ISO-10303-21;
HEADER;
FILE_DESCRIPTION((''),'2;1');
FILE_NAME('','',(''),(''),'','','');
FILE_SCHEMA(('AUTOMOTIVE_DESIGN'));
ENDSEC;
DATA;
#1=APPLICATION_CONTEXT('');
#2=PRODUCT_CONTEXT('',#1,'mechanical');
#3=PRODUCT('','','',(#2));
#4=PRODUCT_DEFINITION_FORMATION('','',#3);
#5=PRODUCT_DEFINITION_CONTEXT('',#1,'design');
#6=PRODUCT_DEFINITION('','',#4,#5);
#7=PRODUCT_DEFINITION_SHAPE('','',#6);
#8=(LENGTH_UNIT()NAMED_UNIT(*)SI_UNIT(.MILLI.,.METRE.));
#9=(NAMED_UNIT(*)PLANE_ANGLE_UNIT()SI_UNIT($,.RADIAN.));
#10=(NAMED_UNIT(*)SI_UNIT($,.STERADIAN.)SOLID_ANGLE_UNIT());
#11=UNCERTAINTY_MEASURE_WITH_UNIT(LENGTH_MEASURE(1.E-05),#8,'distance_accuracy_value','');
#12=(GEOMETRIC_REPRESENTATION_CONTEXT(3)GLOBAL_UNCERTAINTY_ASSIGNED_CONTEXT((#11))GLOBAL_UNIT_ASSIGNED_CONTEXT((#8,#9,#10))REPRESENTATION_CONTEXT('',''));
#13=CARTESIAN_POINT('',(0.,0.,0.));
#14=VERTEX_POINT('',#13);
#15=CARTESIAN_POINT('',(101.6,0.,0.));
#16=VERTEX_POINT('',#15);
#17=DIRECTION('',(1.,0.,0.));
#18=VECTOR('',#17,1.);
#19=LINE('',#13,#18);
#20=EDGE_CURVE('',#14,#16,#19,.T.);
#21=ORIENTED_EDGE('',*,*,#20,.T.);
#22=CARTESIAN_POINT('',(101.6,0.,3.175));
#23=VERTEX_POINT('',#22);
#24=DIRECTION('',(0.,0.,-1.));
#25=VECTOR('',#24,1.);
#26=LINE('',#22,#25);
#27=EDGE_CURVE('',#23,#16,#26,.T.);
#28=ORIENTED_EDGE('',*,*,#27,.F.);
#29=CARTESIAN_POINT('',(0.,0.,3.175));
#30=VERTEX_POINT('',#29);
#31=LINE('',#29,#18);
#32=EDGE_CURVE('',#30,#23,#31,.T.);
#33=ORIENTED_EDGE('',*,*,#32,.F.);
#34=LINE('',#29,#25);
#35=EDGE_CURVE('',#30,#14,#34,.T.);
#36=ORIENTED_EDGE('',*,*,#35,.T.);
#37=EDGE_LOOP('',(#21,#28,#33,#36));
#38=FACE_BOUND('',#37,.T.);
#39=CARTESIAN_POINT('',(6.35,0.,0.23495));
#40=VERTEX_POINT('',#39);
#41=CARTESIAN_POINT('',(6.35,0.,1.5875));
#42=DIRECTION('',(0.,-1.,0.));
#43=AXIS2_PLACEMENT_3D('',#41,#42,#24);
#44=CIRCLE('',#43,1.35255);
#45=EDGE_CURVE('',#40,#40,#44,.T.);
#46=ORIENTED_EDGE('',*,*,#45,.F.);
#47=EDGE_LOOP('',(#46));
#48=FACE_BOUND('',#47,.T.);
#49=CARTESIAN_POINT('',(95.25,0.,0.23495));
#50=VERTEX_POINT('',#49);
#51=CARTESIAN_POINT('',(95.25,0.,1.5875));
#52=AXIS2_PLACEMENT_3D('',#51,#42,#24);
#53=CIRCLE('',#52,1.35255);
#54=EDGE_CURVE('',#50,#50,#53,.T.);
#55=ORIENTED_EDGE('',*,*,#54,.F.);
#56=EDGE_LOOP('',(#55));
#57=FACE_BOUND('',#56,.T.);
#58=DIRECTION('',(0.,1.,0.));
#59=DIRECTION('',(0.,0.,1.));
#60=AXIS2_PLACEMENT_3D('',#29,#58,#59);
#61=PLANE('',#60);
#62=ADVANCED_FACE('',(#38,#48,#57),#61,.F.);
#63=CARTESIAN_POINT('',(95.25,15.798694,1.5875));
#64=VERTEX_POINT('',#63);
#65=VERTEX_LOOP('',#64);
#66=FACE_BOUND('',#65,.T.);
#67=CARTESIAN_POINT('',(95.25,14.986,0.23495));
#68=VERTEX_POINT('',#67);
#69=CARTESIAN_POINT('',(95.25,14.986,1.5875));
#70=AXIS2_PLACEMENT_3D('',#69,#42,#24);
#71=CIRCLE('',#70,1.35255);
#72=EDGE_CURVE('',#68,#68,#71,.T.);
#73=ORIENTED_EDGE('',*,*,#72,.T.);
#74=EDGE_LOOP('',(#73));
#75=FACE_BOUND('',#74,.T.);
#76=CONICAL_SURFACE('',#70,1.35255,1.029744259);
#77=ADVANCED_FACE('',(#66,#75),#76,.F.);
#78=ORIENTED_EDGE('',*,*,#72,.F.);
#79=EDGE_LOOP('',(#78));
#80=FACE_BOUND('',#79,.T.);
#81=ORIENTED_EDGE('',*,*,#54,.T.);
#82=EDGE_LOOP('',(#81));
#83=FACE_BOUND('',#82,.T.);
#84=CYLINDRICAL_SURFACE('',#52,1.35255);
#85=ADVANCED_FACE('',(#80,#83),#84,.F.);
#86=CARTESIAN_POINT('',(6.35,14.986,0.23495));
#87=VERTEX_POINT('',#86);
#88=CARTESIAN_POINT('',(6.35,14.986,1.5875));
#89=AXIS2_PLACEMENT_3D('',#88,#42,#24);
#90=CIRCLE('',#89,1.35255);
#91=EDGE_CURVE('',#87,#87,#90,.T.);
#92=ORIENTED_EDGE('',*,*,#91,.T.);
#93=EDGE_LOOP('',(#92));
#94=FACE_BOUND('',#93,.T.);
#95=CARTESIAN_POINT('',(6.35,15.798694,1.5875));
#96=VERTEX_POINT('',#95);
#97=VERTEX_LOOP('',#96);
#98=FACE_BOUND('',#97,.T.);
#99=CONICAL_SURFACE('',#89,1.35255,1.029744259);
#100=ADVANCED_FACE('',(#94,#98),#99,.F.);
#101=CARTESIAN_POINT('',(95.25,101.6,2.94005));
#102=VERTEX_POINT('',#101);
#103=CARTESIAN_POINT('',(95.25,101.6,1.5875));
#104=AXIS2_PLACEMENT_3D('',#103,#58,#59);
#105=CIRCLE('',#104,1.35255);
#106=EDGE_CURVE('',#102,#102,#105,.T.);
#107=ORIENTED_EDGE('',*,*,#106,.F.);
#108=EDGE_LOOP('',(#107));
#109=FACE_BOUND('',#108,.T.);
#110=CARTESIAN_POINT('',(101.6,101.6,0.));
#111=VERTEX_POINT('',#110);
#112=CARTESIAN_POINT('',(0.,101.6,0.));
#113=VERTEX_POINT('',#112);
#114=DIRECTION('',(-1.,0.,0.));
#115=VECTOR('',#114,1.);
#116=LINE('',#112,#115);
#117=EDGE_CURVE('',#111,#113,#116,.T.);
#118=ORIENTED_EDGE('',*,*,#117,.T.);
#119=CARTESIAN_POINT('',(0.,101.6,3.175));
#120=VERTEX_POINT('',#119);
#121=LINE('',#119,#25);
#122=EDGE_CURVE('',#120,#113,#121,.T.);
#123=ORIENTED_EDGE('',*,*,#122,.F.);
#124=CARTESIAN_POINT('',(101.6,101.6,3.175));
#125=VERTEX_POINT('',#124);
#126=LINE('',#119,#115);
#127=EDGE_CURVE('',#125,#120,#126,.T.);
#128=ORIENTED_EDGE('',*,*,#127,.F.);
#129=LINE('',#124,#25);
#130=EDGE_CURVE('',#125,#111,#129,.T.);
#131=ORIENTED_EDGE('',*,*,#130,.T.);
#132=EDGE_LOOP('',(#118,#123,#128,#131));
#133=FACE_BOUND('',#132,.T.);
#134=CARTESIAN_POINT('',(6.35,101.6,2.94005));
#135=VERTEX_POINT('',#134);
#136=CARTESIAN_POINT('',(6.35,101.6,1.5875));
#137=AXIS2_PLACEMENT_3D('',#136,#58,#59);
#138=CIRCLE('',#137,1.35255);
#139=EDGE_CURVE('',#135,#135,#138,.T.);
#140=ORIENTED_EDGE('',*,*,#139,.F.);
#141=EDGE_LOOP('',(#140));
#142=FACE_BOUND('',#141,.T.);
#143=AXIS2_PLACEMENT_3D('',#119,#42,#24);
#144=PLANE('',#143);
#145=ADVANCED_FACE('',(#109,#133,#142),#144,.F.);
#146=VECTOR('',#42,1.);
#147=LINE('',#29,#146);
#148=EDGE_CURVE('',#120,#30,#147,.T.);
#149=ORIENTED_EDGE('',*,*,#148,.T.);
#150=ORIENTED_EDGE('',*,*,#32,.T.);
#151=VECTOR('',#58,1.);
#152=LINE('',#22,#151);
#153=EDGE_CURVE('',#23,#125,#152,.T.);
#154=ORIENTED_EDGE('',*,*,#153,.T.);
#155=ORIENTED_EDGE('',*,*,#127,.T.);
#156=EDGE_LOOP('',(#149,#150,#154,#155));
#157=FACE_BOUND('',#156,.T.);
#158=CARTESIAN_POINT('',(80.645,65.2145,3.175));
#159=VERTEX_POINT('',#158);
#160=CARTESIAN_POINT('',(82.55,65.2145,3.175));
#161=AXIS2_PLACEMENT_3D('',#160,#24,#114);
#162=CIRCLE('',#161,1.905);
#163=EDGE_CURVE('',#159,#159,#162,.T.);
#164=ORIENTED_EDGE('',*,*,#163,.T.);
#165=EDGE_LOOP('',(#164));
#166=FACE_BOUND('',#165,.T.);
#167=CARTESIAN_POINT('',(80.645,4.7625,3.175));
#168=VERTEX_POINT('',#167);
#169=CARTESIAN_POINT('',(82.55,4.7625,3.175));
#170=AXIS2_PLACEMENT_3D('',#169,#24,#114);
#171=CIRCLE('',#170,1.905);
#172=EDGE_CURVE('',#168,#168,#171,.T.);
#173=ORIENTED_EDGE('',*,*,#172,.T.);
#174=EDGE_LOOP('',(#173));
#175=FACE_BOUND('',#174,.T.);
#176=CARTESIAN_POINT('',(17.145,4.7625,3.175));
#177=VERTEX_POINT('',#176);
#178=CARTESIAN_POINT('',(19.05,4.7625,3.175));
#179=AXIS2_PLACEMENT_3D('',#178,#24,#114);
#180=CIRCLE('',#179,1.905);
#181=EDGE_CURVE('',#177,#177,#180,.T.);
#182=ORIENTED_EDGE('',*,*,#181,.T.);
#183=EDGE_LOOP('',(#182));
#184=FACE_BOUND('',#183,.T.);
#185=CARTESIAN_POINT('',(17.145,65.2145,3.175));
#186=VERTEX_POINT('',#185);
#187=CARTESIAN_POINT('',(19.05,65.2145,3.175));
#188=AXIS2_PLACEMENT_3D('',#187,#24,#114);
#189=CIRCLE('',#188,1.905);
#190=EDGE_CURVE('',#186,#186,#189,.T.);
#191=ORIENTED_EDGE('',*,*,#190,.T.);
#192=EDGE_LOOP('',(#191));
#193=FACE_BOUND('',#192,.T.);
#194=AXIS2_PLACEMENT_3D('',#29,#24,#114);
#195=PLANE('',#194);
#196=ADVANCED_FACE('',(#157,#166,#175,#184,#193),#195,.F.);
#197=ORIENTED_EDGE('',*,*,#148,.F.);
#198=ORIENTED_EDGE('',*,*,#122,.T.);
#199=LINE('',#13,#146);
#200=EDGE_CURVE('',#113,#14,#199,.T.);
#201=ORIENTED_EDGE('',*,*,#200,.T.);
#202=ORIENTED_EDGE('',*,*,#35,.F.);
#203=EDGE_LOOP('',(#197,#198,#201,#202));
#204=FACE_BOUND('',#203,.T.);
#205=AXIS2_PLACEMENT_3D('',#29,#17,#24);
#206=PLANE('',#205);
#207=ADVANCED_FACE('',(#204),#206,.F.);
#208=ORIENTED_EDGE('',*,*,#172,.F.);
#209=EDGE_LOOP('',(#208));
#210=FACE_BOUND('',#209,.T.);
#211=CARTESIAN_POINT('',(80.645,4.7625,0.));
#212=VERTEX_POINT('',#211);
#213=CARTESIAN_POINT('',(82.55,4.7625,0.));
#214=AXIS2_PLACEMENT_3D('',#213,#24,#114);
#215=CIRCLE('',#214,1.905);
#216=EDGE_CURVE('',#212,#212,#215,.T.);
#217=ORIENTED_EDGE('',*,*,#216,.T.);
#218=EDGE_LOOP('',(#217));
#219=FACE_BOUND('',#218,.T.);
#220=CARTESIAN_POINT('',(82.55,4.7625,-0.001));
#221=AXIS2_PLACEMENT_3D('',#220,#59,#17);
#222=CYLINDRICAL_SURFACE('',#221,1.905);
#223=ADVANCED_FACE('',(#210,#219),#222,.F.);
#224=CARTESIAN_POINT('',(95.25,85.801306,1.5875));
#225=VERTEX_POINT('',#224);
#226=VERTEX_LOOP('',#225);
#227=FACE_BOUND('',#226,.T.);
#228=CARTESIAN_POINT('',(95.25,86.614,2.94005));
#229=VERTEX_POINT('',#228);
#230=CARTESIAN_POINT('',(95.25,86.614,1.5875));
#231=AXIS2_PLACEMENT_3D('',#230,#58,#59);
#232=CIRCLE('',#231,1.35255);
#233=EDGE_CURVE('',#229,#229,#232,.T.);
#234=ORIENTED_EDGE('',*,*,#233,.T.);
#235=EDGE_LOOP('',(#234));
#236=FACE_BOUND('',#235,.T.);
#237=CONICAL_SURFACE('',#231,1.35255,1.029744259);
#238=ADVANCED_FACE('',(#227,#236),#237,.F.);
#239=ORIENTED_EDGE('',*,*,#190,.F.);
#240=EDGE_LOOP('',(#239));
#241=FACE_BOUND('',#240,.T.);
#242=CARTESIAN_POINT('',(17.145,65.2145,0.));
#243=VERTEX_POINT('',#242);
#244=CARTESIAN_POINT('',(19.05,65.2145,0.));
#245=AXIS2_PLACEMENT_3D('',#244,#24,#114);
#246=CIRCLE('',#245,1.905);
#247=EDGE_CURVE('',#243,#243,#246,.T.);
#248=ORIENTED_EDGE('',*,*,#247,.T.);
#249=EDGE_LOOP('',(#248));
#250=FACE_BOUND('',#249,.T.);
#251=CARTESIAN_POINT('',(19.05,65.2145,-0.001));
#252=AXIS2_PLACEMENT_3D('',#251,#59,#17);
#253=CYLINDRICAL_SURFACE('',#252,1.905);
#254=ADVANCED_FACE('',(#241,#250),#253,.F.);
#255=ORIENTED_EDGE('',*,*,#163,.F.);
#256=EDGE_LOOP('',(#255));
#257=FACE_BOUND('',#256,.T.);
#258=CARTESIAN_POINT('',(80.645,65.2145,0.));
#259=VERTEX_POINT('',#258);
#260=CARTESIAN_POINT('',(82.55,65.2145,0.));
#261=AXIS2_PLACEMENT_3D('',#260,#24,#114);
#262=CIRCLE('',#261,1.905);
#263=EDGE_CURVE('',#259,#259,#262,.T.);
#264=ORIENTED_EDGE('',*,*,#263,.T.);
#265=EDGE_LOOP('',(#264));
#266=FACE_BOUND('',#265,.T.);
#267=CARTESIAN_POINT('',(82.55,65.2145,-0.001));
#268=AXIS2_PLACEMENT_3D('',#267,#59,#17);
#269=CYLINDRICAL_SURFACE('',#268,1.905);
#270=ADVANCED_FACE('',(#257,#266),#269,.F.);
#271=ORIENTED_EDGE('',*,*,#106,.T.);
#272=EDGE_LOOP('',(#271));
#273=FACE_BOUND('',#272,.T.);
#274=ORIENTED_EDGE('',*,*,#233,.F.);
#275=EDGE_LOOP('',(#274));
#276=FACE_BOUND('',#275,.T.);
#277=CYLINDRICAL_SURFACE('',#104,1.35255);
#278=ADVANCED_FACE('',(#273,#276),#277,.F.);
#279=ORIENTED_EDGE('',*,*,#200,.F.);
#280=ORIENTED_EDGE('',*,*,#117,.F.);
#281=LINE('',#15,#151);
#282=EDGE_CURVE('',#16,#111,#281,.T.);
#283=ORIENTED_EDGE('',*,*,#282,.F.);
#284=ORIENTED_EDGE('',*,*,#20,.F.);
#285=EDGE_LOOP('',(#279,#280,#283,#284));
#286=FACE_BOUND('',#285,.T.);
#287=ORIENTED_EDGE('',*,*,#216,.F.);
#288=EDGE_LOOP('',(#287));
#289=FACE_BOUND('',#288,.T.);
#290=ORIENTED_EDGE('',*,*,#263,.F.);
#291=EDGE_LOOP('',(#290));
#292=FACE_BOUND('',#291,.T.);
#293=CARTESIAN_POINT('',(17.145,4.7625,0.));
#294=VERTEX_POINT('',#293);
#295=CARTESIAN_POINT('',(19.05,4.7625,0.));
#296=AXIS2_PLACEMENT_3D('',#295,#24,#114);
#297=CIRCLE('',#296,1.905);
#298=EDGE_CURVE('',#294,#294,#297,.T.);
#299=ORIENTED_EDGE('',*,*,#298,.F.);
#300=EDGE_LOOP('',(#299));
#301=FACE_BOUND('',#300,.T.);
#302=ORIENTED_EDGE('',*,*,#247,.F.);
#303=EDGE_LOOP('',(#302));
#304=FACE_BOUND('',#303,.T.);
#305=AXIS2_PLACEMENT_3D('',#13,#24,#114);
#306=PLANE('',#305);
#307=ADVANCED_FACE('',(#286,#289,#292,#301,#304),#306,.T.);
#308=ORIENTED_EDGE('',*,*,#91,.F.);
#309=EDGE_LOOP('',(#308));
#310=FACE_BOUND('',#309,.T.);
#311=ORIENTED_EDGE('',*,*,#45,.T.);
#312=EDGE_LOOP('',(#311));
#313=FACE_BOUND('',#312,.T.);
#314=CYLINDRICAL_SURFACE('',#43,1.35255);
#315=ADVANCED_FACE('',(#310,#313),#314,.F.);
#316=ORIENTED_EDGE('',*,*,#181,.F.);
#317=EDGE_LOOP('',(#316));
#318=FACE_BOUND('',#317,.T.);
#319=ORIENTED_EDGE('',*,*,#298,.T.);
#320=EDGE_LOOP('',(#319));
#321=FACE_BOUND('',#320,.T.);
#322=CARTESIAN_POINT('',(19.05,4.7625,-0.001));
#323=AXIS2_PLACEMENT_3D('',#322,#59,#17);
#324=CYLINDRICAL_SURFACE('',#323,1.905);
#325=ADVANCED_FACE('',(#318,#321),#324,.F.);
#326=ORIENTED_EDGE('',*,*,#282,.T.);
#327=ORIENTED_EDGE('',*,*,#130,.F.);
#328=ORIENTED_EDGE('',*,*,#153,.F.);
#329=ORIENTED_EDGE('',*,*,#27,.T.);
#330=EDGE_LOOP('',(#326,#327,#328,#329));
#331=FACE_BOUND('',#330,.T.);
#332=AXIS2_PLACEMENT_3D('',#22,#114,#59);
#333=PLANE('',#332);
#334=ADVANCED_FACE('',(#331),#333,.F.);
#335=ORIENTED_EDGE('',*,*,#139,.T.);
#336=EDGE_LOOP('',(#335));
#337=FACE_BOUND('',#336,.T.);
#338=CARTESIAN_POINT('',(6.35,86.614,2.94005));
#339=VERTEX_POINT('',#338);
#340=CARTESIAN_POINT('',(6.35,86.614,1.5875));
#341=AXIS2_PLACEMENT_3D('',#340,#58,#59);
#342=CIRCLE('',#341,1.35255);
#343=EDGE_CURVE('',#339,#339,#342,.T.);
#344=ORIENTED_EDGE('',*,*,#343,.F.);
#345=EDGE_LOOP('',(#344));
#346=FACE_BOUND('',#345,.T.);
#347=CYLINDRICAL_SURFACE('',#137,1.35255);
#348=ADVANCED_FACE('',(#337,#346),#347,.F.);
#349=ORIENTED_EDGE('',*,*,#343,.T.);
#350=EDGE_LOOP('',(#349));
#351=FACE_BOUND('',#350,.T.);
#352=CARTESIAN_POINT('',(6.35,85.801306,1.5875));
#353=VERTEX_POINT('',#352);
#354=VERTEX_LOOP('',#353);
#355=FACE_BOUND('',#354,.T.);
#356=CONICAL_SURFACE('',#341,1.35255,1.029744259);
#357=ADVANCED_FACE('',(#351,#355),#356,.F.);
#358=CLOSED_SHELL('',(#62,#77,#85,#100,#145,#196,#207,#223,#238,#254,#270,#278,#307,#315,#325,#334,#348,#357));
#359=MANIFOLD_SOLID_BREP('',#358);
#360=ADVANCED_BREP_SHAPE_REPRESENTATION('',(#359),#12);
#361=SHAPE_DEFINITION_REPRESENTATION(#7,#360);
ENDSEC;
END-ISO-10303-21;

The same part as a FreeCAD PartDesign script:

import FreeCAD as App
import Part
import Sketcher

V = App.Vector
Q = App.Units.Quantity

doc = App.newDocument("Part")
body = doc.addObject("PartDesign::Body", "Body")

sketch1 = body.newObject("Sketcher::SketchObject", "Sketch")
sketch1.AttachmentSupport = (doc.getObject("XY_Plane"), [""])
sketch1.MapMode = "FlatFace"
sketch1.addGeometry([
    Part.LineSegment(V(0, 102, 0), V(0, 0, 0)),
    Part.LineSegment(V(0, 0, 0), V(102, 0, 0)),
    Part.LineSegment(V(102, 0, 0), V(102, 102, 0)),
    Part.LineSegment(V(102, 102, 0), V(0, 102, 0)),
], False)
sketch1.addConstraint([
    Sketcher.Constraint("Coincident", 0, 2, 1, 1),
    Sketcher.Constraint("Coincident", 1, 2, 2, 1),
    Sketcher.Constraint("Coincident", 2, 2, 3, 1),
    Sketcher.Constraint("Coincident", 3, 2, 0, 1),
    Sketcher.Constraint("Vertical", 0),
    Sketcher.Constraint("Horizontal", 1),
    Sketcher.Constraint("Vertical", 2),
    Sketcher.Constraint("Horizontal", 3),
    Sketcher.Constraint("Coincident", 0, 2, -1, 1),
    Sketcher.Constraint("Equal", 3, 0),
    Sketcher.Constraint("DistanceX", 1, 1, 1, 2, Q("4 in")),
])
pad1 = body.newObject("PartDesign::Pad", "Pad")
pad1.Profile = sketch1
pad1.Length = Q("0.125 in")

sketch2 = body.newObject("Sketcher::SketchObject", "Sketch001")
sketch2.AttachmentSupport = (doc.getObject("YZ_Plane"), [""])
sketch2.MapMode = "FlatFace"
sketch2.AttachmentOffset = App.Placement(V(0, 0, 3.75 * 25.4), App.Rotation())
sketch2.addGeometry([
    Part.LineSegment(V(85.8, 1.6, 0), V(101.6, 1.6, 0)),
    Part.LineSegment(V(101.6, 1.6, 0), V(101.6, 2.9, 0)),
    Part.LineSegment(V(101.6, 2.9, 0), V(86.6, 2.9, 0)),
    Part.LineSegment(V(86.6, 2.9, 0), V(85.8, 1.6, 0)),
], False)
sketch2.addGeometry(Part.LineSegment(V(101.6, 1.6, 0), V(85.8, 1.6, 0)), True)
sketch2.addConstraint([
    Sketcher.Constraint("Coincident", 0, 2, 1, 1),
    Sketcher.Constraint("Coincident", 1, 2, 2, 1),
    Sketcher.Constraint("Coincident", 2, 2, 3, 1),
    Sketcher.Constraint("Coincident", 3, 2, 0, 1),
    Sketcher.Constraint("Horizontal", 0),
    Sketcher.Constraint("Vertical", 1),
    Sketcher.Constraint("Horizontal", 2),
    Sketcher.Constraint("Horizontal", 4),
    Sketcher.Constraint("Coincident", 4, 1, 0, 2),
    Sketcher.Constraint("Equal", 0, 4),
    Sketcher.Constraint("DistanceX", -1, 1, 0, 2, Q("4 in")),
    Sketcher.Constraint("Angle", 3, Q("-121 deg")),
    Sketcher.Constraint("DistanceX", 2, 2, 2, 1, Q("0.59 in")),
    Sketcher.Constraint("DistanceY", -1, 1, 0, 2, Q("0.0625 in")),
    Sketcher.Constraint("DistanceY", 1, 1, 1, 2, 1.35255),
])
groove = body.newObject("PartDesign::Groove", "Groove")
groove.Profile = sketch2
groove.ReferenceAxis = (sketch2, ["Axis0"])
groove.Angle = 360
doc.recompute()

linearpattern = body.newObject("PartDesign::LinearPattern", "LinearPattern")
linearpattern.Originals = [groove]
linearpattern.Direction = (doc.getObject("X_Axis"), [""])
linearpattern.Mode = "offset"
linearpattern.Offset = Q("3.5 in")
linearpattern.Occurrences = 2
linearpattern.Reversed = True
body.Tip = linearpattern
doc.recompute()

datumplane = body.newObject("PartDesign::Plane", "DatumPlane")
datumplane.AttachmentSupport = (doc.getObject("XZ_Plane"), [""])
datumplane.MapMode = "FlatFace"
datumplane.AttachmentOffset = App.Placement(V(0, 0, -2 * 25.4), App.Rotation())
mirrored = body.newObject("PartDesign::Mirrored", "Mirrored")
mirrored.Originals = [groove]
mirrored.MirrorPlane = (datumplane, [""])
body.Tip = mirrored

sketch3 = body.newObject("Sketcher::SketchObject", "Sketch002")
sketch3.AttachmentSupport = (doc.getObject("YZ_Plane"), [""])
sketch3.MapMode = "FlatFace"
sketch3.AttachmentOffset = App.Placement(V(0, 0, 0.25 * 25.4), App.Rotation())
sketch3.addGeometry([
    Part.LineSegment(V(0, 1.6, 0), V(15.8, 1.6, 0)),
    Part.LineSegment(V(15.8, 1.6, 0), V(15, 2.9, 0)),
    Part.LineSegment(V(15, 2.9, 0), V(0, 2.9, 0)),
    Part.LineSegment(V(0, 2.9, 0), V(0, 1.6, 0)),
], False)
sketch3.addGeometry(Part.LineSegment(V(15.8, 1.6, 0), V(0, 1.6, 0)), True)
sketch3.addConstraint([
    Sketcher.Constraint("Coincident", 0, 2, 1, 1),
    Sketcher.Constraint("Coincident", 1, 2, 2, 1),
    Sketcher.Constraint("Coincident", 2, 2, 3, 1),
    Sketcher.Constraint("Coincident", 3, 2, 0, 1),
    Sketcher.Constraint("Horizontal", 0),
    Sketcher.Constraint("Horizontal", 2),
    Sketcher.Constraint("Vertical", 3),
    Sketcher.Constraint("Horizontal", 4),
    Sketcher.Constraint("Coincident", 4, 1, 0, 2),
    Sketcher.Constraint("PointOnObject", 2, 2, -2),
    Sketcher.Constraint("PointOnObject", 4, 2, -2),
    Sketcher.Constraint("Angle", 1, Q("121 deg")),
    Sketcher.Constraint("DistanceX", 2, 2, 2, 1, Q("0.59 in")),
    Sketcher.Constraint("DistanceY", -1, 1, 0, 2, Q("0.0625 in")),
    Sketcher.Constraint("DistanceY", 3, 2, 3, 1, 1.35255),
])
groove2 = body.newObject("PartDesign::Groove", "Groove001")
groove2.Profile = sketch3
groove2.ReferenceAxis = (sketch3, ["Axis0"])
groove2.Angle = 360

sketch4 = body.newObject("Sketcher::SketchObject", "Sketch003")
sketch4.AttachmentSupport = (doc.getObject("XY_Plane"), [""])
sketch4.MapMode = "FlatFace"
sketch4.addGeometry([
    Part.Circle(V(19.1, 65.2, 0), V(0, 0, 1), 1.9),
    Part.Circle(V(19.1, 4.8, 0), V(0, 0, 1), 1.9),
    Part.Circle(V(82.5, 4.8, 0), V(0, 0, 1), 1.9),
    Part.Circle(V(82.5, 65.2, 0), V(0, 0, 1), 1.9),
], False)
sketch4.addConstraint([
    Sketcher.Constraint("Equal", 0, 1),
    Sketcher.Constraint("Equal", 1, 2),
    Sketcher.Constraint("Equal", 2, 3),
    Sketcher.Constraint("Horizontal", 1, 3, 2, 3),
    Sketcher.Constraint("Horizontal", 0, 3, 3, 3),
    Sketcher.Constraint("Vertical", 0, 3, 1, 3),
    Sketcher.Constraint("Vertical", 2, 3, 3, 3),
    Sketcher.Constraint("Diameter", 0, Q("0.15 in")),
    Sketcher.Constraint("DistanceX", 1, 3, 2, 3, Q("2.5 in")),
    Sketcher.Constraint("DistanceX", -1, 1, 0, 3, Q("0.75 in")),
    Sketcher.Constraint("DistanceY", 1, 3, 0, 3, Q("2.38 in")),
    Sketcher.Constraint("DistanceY", -1, 1, 1, 3, Q("0.1875 in")),
])
pocket1 = body.newObject("PartDesign::Pocket", "Pocket")
pocket1.Profile = sketch4
pocket1.Length = Q("0.125 in")
pocket1.Reversed = True

doc.recompute()
